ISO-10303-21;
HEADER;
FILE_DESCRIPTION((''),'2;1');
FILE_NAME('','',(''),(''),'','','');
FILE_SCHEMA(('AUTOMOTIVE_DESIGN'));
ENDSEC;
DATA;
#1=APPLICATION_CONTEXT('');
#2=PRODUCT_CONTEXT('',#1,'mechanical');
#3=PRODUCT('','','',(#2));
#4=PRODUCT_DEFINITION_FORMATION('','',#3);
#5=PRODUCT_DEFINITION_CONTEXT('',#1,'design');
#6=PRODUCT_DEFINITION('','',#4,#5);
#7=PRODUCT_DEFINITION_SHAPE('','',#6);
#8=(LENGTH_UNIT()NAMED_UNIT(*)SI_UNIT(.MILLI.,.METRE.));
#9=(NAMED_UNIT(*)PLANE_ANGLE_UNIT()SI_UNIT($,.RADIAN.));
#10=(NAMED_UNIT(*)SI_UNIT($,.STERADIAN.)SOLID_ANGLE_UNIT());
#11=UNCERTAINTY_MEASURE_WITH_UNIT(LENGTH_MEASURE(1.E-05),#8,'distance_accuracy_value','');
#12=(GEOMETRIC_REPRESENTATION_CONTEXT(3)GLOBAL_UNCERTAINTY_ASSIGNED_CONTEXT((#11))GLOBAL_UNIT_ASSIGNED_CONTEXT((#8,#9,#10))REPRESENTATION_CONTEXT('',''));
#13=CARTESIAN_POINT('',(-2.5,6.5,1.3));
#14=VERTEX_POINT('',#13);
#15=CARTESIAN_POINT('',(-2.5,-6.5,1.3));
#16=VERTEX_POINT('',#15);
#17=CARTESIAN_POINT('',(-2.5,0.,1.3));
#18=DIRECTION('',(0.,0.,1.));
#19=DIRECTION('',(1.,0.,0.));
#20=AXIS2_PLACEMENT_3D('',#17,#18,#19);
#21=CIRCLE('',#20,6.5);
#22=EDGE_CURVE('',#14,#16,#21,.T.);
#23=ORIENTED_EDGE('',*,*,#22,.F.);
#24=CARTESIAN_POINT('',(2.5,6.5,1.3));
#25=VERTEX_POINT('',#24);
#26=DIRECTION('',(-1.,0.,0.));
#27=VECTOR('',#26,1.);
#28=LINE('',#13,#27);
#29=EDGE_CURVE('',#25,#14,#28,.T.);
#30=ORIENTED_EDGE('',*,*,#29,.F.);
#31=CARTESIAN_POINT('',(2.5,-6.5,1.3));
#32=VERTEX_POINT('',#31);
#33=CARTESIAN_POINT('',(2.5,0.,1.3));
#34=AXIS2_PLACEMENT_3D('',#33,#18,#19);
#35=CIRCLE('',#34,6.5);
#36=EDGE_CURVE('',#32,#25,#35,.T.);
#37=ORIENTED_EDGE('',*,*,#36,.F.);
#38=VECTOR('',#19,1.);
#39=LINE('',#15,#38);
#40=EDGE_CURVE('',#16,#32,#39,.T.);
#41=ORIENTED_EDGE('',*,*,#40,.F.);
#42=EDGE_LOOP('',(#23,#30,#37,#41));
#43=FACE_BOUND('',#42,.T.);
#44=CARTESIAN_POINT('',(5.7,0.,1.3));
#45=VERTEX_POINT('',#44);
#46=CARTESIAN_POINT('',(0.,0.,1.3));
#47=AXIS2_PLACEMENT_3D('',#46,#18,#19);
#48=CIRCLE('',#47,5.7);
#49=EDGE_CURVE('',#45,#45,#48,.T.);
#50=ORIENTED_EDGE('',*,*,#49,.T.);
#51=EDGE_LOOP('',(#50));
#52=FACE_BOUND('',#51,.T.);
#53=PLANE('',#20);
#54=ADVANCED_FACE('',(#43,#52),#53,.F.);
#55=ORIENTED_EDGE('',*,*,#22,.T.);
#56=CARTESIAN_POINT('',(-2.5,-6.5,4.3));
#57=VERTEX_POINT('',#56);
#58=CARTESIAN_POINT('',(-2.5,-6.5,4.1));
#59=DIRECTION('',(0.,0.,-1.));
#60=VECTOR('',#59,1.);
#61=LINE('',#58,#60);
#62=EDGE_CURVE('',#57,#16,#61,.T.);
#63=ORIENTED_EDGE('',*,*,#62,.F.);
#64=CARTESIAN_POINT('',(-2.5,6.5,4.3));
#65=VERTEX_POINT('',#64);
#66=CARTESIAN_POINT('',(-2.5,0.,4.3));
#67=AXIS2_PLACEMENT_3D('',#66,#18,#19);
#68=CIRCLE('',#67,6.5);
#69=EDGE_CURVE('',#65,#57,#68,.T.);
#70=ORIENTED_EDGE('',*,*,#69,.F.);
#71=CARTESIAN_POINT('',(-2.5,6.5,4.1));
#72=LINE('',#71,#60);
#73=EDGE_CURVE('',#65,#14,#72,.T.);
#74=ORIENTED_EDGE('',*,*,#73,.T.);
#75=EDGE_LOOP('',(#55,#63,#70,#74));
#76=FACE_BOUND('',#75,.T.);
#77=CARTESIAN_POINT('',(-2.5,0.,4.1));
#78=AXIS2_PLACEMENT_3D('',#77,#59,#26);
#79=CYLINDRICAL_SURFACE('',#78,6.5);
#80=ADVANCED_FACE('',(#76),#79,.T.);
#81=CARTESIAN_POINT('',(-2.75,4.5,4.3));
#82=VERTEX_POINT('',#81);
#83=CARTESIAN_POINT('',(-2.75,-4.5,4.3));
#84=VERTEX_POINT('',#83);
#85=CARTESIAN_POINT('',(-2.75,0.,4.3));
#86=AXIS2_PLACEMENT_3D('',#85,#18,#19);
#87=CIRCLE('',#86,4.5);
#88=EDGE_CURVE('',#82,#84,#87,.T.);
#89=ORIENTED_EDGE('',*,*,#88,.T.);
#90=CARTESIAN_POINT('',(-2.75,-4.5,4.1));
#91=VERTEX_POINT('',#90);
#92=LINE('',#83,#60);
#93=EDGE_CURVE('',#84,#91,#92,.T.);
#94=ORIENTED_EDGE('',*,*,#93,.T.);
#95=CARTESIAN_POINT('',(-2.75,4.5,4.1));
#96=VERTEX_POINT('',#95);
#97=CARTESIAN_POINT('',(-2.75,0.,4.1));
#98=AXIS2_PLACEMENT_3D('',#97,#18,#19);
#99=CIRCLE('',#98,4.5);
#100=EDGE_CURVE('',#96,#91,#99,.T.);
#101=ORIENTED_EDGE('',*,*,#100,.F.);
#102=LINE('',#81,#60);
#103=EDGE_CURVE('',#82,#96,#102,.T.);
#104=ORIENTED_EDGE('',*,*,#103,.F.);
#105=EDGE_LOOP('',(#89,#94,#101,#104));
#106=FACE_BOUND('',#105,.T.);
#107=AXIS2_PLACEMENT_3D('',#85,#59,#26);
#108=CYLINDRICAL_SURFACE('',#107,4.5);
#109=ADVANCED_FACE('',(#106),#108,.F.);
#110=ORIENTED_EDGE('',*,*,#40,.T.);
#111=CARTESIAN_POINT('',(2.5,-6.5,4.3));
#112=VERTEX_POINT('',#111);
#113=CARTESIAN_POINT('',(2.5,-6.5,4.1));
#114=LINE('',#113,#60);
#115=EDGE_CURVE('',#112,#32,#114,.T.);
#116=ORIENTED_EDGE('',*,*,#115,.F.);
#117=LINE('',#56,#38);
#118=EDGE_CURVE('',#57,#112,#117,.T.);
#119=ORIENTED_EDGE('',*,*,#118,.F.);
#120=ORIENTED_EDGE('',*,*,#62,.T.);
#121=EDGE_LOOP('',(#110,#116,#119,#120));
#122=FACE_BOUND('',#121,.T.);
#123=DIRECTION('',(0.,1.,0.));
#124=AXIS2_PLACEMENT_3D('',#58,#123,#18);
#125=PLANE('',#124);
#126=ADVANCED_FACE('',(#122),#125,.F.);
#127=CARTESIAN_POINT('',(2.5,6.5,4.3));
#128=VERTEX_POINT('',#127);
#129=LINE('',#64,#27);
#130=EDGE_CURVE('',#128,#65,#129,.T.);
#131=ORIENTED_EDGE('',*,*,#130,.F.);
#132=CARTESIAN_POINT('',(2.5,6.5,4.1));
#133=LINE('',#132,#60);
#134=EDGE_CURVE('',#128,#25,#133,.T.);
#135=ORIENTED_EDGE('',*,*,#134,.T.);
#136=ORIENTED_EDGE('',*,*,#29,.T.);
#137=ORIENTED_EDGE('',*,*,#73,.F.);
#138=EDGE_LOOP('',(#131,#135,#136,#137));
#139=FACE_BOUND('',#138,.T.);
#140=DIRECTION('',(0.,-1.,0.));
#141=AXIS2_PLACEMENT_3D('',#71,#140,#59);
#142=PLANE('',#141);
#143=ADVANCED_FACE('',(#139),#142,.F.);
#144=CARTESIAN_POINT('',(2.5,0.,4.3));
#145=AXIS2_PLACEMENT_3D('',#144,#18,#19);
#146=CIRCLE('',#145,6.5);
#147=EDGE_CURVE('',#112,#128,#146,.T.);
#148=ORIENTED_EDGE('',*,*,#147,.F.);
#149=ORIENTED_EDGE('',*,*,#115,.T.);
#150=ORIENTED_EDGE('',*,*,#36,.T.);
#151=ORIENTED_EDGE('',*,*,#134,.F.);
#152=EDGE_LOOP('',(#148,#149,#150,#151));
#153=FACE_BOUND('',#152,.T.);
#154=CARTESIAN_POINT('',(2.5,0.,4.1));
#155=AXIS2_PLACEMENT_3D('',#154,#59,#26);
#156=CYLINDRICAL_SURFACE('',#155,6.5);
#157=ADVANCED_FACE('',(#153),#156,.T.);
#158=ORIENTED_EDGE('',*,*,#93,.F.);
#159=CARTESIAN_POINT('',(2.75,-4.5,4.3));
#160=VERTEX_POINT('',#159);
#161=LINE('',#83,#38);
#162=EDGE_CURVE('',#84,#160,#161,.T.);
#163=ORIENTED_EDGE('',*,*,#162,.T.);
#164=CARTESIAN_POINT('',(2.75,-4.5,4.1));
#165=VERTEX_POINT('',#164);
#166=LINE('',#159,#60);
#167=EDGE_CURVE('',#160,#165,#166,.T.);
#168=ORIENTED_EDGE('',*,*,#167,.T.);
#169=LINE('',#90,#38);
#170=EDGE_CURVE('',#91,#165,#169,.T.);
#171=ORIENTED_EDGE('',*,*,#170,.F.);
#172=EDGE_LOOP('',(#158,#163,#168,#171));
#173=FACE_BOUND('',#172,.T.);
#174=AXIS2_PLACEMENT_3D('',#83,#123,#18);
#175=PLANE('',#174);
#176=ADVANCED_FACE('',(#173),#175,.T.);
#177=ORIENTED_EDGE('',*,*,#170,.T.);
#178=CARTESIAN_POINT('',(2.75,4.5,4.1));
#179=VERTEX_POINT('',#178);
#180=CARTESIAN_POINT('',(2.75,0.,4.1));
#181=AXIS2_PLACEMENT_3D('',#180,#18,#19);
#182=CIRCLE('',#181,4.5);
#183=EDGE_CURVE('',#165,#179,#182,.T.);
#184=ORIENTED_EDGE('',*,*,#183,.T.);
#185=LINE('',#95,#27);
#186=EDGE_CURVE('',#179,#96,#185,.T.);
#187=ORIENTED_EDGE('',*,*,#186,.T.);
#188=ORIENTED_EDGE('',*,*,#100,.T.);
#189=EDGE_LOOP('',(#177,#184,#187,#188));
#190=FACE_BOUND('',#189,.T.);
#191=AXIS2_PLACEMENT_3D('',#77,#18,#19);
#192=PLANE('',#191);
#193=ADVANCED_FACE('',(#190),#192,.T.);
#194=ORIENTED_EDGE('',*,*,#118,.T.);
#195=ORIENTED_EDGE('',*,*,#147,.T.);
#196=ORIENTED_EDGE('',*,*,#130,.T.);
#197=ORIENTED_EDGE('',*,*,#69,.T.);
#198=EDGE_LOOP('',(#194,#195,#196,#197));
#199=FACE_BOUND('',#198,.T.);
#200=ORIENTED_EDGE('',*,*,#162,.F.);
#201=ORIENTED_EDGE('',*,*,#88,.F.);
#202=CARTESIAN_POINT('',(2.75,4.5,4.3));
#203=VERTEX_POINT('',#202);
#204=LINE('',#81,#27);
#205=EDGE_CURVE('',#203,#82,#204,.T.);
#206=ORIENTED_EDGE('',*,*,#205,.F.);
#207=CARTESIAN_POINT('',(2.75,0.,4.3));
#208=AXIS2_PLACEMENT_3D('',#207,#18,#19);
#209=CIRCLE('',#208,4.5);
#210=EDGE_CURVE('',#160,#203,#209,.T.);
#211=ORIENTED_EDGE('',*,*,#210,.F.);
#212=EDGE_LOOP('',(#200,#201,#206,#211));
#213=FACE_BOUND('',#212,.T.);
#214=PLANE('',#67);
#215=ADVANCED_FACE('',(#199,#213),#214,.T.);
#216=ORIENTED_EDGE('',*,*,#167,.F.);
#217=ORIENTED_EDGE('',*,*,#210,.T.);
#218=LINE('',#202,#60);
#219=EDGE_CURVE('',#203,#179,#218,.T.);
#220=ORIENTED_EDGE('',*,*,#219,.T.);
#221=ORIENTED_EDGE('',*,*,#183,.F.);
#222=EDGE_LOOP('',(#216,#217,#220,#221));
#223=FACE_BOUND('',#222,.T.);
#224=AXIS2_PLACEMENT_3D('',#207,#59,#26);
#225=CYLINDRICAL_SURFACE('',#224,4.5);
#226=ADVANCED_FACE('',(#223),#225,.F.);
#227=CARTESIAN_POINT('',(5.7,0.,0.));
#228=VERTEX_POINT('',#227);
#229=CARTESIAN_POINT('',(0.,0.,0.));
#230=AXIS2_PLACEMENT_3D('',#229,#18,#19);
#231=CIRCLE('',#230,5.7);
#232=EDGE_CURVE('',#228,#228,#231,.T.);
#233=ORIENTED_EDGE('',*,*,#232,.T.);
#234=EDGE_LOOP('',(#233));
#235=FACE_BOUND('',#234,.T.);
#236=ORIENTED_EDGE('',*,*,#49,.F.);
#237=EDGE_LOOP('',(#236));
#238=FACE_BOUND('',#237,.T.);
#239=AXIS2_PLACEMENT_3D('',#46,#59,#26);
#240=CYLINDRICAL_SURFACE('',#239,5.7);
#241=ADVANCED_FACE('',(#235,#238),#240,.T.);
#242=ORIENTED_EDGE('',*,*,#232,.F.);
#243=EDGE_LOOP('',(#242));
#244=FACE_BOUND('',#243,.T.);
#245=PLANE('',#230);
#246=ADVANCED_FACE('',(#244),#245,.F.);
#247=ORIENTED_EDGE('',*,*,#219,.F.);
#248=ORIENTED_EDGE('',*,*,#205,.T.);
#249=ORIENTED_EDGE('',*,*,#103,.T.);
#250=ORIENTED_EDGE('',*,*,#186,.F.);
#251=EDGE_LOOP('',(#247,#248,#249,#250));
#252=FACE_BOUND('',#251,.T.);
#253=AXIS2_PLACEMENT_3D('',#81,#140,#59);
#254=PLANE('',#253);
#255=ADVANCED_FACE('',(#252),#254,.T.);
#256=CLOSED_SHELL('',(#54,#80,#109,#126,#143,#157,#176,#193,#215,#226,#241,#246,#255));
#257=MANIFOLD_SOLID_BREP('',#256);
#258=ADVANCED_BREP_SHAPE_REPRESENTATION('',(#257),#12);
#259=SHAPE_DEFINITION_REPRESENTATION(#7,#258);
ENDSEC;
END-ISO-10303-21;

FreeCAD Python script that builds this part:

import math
import FreeCAD as App
import Part
import Sketcher

doc = App.newDocument("Part")
body = doc.addObject("PartDesign::Body", "Body")

sketch1 = doc.addObject("Sketcher::SketchObject", "Sketch")
body.addObject(sketch1)
sketch1.AttachmentSupport = (doc.XY_Plane, [""])
sketch1.MapMode = "FlatFace"
sketch1.addGeometry(Part.Circle(App.Vector(0, 0, 0), App.Vector(0, 0, 1), 5.7), False)
sketch1.addConstraint([
    Sketcher.Constraint("Coincident", 0, 3, -1, 1),
    Sketcher.Constraint("Diameter", 0, 11.4),
])
pad1 = doc.addObject("PartDesign::Pad", "Pad")
body.addObject(pad1)
pad1.Profile = sketch1
pad1.Length = 1.3

sketch2 = doc.addObject("Sketcher::SketchObject", "Sketch001")
body.addObject(sketch2)
sketch2.AttachmentSupport = (doc.XY_Plane, [""])
sketch2.MapMode = "FlatFace"
sketch2.AttachmentOffset = App.Placement(App.Vector(0, 0, 1.3), App.Rotation())
sketch2.addGeometry([
    Part.LineSegment(App.Vector(2.5, 6.5, 0), App.Vector(-2.5, 6.5, 0)),
    Part.ArcOfCircle(Part.Circle(App.Vector(-2.5, 0, 0), App.Vector(0, 0, 1), 6.5), math.radians(90), math.radians(270)),
    Part.LineSegment(App.Vector(-2.5, -6.5, 0), App.Vector(2.5, -6.5, 0)),
    Part.ArcOfCircle(Part.Circle(App.Vector(2.5, 0, 0), App.Vector(0, 0, 1), 6.5), math.radians(-90), math.radians(90)),
], False)
sketch2.addConstraint([
    Sketcher.Constraint("Tangent", 0, 2, 1, 1),
    Sketcher.Constraint("Tangent", 1, 2, 2, 1),
    Sketcher.Constraint("Tangent", 2, 2, 3, 1),
    Sketcher.Constraint("Tangent", 3, 2, 0, 1),
    Sketcher.Constraint("Horizontal", 0),
    Sketcher.Constraint("Horizontal", 2),
    Sketcher.Constraint("Symmetric", 1, 3, 3, 3, -1, 1),
    Sketcher.Constraint("Radius", 1, 6.5),
    Sketcher.Constraint("DistanceX", 0, 2, 0, 1, 5.0),
])
pad2 = doc.addObject("PartDesign::Pad", "Pad001")
body.addObject(pad2)
pad2.Profile = sketch2
pad2.Length = 2.8

sketch3 = doc.addObject("Sketcher::SketchObject", "Sketch002")
body.addObject(sketch3)
sketch3.AttachmentSupport = (doc.XY_Plane, [""])
sketch3.MapMode = "FlatFace"
sketch3.AttachmentOffset = App.Placement(App.Vector(0, 0, 4.1), App.Rotation())
sketch3.addGeometry([
    Part.LineSegment(App.Vector(2.5, 6.5, 0), App.Vector(-2.5, 6.5, 0)),
    Part.ArcOfCircle(Part.Circle(App.Vector(-2.5, 0, 0), App.Vector(0, 0, 1), 6.5), math.radians(90), math.radians(270)),
    Part.LineSegment(App.Vector(-2.5, -6.5, 0), App.Vector(2.5, -6.5, 0)),
    Part.ArcOfCircle(Part.Circle(App.Vector(2.5, 0, 0), App.Vector(0, 0, 1), 6.5), math.radians(-90), math.radians(90)),
    Part.LineSegment(App.Vector(-2.75, 4.5, 0), App.Vector(2.75, 4.5, 0)),
    Part.ArcOfCircle(Part.Circle(App.Vector(2.75, 0, 0), App.Vector(0, 0, 1), 4.5), math.radians(-90), math.radians(90)),
    Part.LineSegment(App.Vector(2.75, -4.5, 0), App.Vector(-2.75, -4.5, 0)),
    Part.ArcOfCircle(Part.Circle(App.Vector(-2.75, 0, 0), App.Vector(0, 0, 1), 4.5), math.radians(90), math.radians(270)),
], False)
sketch3.addConstraint([
    Sketcher.Constraint("Tangent", 0, 2, 1, 1),
    Sketcher.Constraint("Tangent", 1, 2, 2, 1),
    Sketcher.Constraint("Tangent", 2, 2, 3, 1),
    Sketcher.Constraint("Tangent", 3, 2, 0, 1),
    Sketcher.Constraint("Tangent", 4, 2, 5, 2),
    Sketcher.Constraint("Tangent", 5, 1, 6, 1),
    Sketcher.Constraint("Tangent", 6, 2, 7, 2),
    Sketcher.Constraint("Tangent", 7, 1, 4, 1),
    Sketcher.Constraint("Horizontal", 0),
    Sketcher.Constraint("Horizontal", 2),
    Sketcher.Constraint("Horizontal", 4),
    Sketcher.Constraint("Horizontal", 6),
    Sketcher.Constraint("Symmetric", 1, 3, 3, 3, -1, 1),
    Sketcher.Constraint("Symmetric", 5, 3, 7, 3, -1, 1),
    Sketcher.Constraint("Radius", 1, 6.5),
    Sketcher.Constraint("Radius", 5, 4.5),
    Sketcher.Constraint("DistanceX", 0, 2, 0, 1, 5.0),
    Sketcher.Constraint("DistanceX", 4, 1, 4, 2, 5.5),
])
pad3 = doc.addObject("PartDesign::Pad", "Pad002")
body.addObject(pad3)
pad3.Profile = sketch3
pad3.Length = 0.2

doc.recompute()
